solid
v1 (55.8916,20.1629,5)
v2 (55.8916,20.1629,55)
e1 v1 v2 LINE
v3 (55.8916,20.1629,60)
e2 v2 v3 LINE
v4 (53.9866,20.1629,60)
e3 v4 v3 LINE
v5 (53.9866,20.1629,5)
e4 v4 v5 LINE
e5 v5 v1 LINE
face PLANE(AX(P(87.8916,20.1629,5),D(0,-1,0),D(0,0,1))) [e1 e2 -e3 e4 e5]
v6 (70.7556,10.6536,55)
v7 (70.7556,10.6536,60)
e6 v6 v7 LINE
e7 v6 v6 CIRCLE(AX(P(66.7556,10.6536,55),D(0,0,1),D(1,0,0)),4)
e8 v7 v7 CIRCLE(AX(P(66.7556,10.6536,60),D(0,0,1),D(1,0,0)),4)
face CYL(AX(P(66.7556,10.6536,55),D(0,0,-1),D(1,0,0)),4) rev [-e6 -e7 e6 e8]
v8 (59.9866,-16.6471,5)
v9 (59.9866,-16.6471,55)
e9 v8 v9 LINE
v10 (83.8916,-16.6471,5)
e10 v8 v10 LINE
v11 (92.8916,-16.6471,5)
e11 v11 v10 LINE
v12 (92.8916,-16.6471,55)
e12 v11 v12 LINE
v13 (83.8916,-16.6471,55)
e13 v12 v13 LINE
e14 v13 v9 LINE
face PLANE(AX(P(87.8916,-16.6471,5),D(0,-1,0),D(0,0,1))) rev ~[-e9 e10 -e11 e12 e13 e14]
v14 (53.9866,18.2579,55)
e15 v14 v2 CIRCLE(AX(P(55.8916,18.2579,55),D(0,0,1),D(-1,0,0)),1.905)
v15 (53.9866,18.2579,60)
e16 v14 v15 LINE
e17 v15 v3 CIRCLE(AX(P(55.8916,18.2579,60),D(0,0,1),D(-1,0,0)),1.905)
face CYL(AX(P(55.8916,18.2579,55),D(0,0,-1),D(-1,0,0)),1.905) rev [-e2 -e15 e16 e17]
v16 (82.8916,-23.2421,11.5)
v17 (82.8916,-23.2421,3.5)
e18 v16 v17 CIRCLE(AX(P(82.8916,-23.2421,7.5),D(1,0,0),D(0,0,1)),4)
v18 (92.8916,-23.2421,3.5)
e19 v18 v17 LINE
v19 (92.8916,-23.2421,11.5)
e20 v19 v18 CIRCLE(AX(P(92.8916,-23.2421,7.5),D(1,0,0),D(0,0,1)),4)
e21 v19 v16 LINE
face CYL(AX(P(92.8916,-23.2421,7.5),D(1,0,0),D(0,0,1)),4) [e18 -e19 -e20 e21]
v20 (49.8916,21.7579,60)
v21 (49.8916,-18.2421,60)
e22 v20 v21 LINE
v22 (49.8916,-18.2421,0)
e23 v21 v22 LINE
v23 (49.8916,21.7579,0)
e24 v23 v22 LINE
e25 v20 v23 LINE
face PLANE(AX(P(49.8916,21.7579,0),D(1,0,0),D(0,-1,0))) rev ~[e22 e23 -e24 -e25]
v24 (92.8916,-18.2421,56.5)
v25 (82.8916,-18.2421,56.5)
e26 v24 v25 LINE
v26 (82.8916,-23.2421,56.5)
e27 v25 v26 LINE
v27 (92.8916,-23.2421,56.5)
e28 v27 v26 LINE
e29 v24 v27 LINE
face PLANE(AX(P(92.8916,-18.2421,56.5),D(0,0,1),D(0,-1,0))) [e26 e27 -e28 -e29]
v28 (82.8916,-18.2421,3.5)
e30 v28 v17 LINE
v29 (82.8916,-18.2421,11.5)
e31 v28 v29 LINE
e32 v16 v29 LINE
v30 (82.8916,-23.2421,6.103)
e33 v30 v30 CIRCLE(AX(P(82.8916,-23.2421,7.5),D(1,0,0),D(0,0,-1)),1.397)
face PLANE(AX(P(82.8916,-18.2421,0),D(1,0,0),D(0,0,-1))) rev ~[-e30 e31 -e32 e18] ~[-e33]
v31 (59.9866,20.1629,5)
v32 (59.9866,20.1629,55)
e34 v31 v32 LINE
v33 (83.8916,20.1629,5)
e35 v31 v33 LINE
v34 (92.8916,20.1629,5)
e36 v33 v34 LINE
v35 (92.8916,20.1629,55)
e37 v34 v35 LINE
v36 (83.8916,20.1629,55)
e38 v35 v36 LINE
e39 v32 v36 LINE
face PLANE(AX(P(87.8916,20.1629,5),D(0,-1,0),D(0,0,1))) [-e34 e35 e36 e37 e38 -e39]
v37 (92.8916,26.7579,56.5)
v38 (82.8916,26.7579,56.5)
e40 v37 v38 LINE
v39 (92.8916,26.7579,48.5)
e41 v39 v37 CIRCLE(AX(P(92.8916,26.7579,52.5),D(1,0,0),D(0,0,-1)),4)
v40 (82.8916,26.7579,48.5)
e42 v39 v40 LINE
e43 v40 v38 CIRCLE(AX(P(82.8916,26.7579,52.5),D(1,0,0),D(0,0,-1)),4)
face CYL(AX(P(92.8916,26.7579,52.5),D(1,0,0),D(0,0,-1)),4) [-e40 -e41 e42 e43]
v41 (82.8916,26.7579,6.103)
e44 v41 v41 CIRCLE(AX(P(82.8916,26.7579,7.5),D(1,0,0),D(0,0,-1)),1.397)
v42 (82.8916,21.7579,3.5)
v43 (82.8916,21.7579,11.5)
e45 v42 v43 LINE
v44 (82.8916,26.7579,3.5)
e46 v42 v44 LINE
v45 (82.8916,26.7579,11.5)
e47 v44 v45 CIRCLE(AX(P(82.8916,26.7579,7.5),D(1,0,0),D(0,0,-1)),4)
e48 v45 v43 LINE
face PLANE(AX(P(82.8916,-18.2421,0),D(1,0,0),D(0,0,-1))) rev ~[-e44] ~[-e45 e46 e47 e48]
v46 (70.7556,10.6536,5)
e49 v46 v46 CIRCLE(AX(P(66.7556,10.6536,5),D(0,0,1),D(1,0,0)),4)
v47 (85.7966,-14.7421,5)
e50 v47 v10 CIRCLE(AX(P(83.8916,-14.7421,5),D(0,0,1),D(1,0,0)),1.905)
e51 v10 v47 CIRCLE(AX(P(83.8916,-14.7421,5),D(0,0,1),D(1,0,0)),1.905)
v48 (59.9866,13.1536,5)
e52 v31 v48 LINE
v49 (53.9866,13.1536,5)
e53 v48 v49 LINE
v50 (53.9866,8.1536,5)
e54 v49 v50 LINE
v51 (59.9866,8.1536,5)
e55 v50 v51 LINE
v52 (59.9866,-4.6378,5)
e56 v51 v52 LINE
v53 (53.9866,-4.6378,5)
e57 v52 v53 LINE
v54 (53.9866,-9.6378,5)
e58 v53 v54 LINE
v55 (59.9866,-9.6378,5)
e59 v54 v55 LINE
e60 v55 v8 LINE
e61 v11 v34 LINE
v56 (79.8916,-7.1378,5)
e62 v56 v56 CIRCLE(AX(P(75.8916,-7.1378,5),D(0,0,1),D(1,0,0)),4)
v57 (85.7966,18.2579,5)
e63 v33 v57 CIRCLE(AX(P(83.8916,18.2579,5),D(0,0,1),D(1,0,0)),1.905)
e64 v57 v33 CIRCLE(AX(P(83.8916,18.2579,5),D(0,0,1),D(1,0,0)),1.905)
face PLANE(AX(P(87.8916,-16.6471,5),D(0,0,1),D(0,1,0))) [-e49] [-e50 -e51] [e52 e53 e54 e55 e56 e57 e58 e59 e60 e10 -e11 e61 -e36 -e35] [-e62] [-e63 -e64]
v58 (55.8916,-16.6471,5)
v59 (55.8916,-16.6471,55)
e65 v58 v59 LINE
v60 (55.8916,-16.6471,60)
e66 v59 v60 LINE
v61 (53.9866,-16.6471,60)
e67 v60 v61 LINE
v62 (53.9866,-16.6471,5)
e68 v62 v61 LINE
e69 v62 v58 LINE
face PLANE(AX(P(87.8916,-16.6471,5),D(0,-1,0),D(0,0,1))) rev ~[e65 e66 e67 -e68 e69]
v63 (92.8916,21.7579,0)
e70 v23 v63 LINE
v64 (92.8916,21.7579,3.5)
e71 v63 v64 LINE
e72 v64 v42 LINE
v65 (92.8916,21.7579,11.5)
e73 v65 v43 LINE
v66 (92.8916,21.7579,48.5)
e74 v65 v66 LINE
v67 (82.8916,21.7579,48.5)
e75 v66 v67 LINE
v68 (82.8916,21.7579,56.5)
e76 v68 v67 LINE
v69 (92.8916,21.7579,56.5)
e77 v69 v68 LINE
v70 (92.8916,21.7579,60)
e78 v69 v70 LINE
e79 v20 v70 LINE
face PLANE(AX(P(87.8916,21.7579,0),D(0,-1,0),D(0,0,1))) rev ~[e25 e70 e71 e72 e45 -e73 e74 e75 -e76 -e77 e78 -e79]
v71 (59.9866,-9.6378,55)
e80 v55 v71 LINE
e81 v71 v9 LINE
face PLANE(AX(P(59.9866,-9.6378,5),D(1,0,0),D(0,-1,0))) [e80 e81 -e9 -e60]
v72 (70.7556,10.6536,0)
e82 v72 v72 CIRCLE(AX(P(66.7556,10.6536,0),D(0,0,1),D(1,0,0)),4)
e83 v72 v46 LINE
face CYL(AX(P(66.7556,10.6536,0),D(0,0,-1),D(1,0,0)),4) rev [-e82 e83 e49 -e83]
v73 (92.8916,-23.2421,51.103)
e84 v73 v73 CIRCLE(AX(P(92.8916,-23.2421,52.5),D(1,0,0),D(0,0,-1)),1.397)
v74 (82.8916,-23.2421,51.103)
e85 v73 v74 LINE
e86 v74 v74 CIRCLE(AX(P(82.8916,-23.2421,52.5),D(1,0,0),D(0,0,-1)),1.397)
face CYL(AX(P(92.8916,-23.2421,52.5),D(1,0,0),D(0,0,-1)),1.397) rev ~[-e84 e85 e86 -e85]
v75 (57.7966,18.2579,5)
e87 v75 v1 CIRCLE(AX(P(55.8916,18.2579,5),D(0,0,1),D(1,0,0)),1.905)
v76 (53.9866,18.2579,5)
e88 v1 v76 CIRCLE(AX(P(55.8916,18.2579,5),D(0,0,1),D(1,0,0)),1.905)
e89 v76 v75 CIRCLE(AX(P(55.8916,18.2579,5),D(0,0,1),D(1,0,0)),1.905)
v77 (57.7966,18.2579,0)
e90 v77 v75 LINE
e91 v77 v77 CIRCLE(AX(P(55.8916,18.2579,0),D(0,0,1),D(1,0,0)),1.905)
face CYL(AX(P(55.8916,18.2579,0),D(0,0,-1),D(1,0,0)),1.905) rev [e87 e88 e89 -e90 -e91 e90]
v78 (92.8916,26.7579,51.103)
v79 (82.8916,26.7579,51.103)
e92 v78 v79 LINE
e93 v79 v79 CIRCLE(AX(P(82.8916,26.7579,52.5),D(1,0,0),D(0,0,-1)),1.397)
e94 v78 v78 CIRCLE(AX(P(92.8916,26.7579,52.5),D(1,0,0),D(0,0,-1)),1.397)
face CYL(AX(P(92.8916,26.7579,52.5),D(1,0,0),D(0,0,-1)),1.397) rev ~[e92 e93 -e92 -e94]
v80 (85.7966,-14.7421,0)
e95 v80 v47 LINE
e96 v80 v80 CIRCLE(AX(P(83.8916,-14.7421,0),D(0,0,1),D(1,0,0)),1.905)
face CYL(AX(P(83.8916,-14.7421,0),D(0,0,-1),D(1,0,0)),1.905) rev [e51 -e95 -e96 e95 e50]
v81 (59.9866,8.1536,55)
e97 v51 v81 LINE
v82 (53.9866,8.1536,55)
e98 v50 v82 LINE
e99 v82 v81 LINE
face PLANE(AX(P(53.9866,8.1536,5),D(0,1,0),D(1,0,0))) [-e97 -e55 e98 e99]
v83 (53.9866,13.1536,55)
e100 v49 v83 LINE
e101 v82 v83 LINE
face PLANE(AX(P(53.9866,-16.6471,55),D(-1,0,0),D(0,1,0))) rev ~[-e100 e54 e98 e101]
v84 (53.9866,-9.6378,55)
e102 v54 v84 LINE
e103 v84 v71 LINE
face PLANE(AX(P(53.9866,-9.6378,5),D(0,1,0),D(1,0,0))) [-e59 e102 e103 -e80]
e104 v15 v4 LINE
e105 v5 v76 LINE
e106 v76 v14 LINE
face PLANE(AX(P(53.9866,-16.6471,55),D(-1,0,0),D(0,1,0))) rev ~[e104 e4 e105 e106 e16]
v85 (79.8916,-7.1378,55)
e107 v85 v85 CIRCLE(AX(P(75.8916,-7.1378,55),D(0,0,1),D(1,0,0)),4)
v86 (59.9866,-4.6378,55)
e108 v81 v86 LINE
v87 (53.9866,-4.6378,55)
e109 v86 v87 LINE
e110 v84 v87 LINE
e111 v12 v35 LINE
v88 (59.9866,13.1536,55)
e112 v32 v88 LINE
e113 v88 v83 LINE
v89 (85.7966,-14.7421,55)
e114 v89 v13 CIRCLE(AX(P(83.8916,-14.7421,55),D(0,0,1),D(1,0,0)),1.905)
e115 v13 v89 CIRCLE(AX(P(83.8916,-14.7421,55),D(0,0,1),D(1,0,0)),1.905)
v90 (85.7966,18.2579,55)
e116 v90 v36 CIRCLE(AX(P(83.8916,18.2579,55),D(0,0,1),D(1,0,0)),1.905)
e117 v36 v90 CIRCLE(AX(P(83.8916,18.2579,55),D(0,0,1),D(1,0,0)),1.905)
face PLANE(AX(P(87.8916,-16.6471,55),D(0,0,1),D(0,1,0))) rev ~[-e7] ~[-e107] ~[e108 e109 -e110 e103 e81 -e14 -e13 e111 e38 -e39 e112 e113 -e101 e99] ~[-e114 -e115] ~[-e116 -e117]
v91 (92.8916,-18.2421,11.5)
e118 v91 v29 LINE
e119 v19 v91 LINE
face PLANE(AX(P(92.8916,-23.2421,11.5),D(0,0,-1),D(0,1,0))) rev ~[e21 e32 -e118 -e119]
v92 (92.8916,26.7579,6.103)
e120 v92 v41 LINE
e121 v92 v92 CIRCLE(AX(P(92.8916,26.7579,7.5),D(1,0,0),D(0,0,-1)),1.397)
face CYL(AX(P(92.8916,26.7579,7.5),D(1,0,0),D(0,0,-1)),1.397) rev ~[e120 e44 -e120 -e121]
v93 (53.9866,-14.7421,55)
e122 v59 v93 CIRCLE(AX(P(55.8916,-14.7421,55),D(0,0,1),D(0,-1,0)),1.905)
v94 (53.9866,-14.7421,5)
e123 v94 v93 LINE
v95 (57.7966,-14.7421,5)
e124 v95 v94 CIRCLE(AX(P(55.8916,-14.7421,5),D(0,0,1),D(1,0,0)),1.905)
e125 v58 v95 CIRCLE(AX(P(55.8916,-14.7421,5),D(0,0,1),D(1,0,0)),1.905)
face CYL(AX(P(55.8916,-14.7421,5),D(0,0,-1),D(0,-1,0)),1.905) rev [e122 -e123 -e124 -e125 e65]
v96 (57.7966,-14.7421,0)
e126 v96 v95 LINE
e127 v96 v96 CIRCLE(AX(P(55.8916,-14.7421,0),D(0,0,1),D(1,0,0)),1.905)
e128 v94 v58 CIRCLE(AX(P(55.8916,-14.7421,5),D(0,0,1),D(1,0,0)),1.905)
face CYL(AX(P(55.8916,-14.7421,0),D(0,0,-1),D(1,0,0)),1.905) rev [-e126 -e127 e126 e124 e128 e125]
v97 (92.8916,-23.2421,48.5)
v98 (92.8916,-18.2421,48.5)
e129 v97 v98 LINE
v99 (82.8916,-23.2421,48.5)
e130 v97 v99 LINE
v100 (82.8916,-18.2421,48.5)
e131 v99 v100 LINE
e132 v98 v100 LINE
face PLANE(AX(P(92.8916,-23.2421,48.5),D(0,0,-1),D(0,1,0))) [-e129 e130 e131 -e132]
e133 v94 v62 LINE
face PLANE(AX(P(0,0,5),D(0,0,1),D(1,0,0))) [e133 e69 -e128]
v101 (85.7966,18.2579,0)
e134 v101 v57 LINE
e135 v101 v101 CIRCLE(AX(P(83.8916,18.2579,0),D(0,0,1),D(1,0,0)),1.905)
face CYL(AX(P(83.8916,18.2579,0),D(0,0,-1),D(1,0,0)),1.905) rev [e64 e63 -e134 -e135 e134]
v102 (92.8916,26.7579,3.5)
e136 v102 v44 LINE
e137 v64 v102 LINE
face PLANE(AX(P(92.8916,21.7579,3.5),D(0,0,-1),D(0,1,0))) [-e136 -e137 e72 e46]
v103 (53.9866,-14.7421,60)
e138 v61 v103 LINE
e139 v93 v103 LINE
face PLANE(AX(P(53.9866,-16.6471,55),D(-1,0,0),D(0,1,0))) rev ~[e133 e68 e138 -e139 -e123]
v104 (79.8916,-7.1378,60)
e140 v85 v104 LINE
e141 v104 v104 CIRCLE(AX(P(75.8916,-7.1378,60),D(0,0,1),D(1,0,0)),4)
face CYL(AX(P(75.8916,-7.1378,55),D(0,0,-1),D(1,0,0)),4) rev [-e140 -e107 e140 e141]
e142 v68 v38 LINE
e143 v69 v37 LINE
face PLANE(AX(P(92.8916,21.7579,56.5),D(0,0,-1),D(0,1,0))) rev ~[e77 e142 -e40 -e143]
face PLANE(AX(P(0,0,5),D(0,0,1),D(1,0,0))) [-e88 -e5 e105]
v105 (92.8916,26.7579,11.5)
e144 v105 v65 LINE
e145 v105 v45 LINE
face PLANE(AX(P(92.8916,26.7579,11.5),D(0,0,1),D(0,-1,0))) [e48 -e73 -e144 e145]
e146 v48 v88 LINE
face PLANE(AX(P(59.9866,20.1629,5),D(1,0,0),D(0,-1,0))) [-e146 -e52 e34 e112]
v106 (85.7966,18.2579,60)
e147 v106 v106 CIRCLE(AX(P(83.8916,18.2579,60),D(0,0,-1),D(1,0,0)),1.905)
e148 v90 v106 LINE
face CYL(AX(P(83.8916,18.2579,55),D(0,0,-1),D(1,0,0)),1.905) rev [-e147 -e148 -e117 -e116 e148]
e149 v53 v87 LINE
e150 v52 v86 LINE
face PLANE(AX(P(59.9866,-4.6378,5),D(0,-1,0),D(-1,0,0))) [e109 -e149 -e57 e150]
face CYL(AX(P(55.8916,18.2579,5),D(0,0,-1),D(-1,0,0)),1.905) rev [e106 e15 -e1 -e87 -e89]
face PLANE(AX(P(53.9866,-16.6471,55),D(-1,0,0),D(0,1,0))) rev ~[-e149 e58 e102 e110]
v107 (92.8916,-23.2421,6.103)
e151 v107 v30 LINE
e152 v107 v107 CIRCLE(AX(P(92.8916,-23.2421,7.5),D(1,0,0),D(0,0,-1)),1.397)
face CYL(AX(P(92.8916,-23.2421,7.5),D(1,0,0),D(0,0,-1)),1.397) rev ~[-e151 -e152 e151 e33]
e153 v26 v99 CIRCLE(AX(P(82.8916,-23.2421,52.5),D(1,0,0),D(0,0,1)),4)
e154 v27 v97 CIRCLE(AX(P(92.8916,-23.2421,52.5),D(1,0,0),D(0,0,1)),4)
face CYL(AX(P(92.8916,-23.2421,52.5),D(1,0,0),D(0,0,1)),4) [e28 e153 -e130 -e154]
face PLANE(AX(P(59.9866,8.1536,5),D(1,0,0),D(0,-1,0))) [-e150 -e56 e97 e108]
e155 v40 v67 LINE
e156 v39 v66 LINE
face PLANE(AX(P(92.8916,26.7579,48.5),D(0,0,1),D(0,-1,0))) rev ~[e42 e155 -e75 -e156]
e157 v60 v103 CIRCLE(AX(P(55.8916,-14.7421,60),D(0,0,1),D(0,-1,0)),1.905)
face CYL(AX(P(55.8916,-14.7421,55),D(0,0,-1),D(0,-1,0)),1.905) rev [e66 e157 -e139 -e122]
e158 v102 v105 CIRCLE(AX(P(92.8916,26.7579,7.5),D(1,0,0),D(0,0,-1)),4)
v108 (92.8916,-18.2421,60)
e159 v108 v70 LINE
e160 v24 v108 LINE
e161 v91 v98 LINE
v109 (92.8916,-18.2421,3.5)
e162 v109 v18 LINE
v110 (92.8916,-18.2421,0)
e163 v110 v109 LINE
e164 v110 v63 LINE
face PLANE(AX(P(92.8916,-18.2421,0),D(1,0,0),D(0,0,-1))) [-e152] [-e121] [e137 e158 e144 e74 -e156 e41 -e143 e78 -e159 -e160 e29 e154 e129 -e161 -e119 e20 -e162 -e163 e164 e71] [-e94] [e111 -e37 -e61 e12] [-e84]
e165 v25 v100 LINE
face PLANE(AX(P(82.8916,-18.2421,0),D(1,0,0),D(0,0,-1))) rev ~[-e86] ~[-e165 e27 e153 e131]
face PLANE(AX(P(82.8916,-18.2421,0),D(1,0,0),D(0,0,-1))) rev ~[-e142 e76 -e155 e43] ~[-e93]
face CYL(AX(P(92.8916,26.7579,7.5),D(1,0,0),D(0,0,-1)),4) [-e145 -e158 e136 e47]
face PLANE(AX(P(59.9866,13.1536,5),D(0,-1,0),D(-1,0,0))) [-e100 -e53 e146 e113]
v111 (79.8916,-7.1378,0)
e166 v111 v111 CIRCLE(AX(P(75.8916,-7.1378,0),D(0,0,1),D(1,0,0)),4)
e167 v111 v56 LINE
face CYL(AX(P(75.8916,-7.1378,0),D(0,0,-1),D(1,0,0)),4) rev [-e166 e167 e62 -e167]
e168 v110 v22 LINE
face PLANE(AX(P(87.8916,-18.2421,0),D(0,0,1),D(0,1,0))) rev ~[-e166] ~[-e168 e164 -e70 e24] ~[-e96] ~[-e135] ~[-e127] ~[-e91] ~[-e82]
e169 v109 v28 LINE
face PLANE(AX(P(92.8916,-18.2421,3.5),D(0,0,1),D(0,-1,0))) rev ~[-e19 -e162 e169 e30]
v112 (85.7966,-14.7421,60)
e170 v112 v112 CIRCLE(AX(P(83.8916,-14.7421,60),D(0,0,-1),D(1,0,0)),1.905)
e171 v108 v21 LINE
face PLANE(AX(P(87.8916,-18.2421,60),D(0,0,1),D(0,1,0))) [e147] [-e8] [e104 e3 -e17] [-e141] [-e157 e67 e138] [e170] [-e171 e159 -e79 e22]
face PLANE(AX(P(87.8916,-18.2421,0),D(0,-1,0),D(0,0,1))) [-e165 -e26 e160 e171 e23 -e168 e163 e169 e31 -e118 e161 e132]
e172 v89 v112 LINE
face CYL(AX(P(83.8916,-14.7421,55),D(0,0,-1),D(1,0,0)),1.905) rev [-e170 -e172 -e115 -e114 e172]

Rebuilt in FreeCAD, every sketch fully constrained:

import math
import FreeCAD as App
import Part
import Sketcher

V = App.Vector

doc = App.newDocument("Part")
body = doc.addObject("PartDesign::Body", "Body")

sketch1 = body.newObject("Sketcher::SketchObject", "Sketch")
sketch1.AttachmentSupport = (doc.getObject("XY_Plane"), [""])
sketch1.MapMode = "FlatFace"
sketch1.addGeometry([
    Part.LineSegment(V(49.9, -18.2, 0), V(87.9, -18.2, 0)),
    Part.LineSegment(V(87.9, -18.2, 0), V(87.9, 21.8, 0)),
    Part.LineSegment(V(87.9, 21.8, 0), V(49.9, 21.8, 0)),
    Part.LineSegment(V(49.9, 21.8, 0), V(49.9, -18.2, 0)),
    Part.Circle(V(55.9, -14.7, 0), V(0, 0, 1), 1.9),
    Part.Circle(V(83.9, -14.7, 0), V(0, 0, 1), 1.9),
    Part.Circle(V(75.9, -7.1, 0), V(0, 0, 1), 4),
    Part.Circle(V(66.8, 10.7, 0), V(0, 0, 1), 4),
    Part.Circle(V(55.9, 18.3, 0), V(0, 0, 1), 1.9),
    Part.Circle(V(83.9, 18.3, 0), V(0, 0, 1), 1.9),
], False)
sketch1.addConstraint([
    Sketcher.Constraint("Coincident", 0, 2, 1, 1),
    Sketcher.Constraint("Coincident", 1, 2, 2, 1),
    Sketcher.Constraint("Coincident", 2, 2, 3, 1),
    Sketcher.Constraint("Coincident", 3, 2, 0, 1),
    Sketcher.Constraint("Horizontal", 0),
    Sketcher.Constraint("Vertical", 1),
    Sketcher.Constraint("Horizontal", 2),
    Sketcher.Constraint("Vertical", 3),
    Sketcher.Constraint("Equal", 4, 5),
    Sketcher.Constraint("Equal", 6, 7),
    Sketcher.Constraint("Equal", 5, 8),
    Sketcher.Constraint("Equal", 8, 9),
    Sketcher.Constraint("Horizontal", 4, 3, 5, 3),
    Sketcher.Constraint("Horizontal", 8, 3, 9, 3),
    Sketcher.Constraint("Vertical", 4, 3, 8, 3),
    Sketcher.Constraint("Vertical", 5, 3, 9, 3),
    Sketcher.Constraint("Diameter", 4, 3.81),
    Sketcher.Constraint("DistanceX", 0, 1, 0, 2, 38.0),
    Sketcher.Constraint("Diameter", 6, 8.0),
    Sketcher.Constraint("DistanceY", 1, 1, 1, 2, 40.0),
    Sketcher.Constraint("DistanceX", 4, 3, 5, 3, 28.0),
    Sketcher.Constraint("DistanceX", 6, 3, 5, 3, 8.0),
    Sketcher.Constraint("DistanceY", 4, 3, 8, 3, 33.0),
    Sketcher.Constraint("DistanceX", 5, 3, 0, 2, 4.0),
    Sketcher.Constraint("DistanceY", 0, 2, 5, 3, 3.5),
    Sketcher.Constraint("DistanceY", 4, 3, -1, 1, 14.742),
    Sketcher.Constraint("DistanceX", 7, 3, 6, 3, 9.136),
    Sketcher.Constraint("DistanceX", -1, 1, 4, 3, 55.8916),
    Sketcher.Constraint("DistanceY", 6, 3, -1, 1, 7.1378),
    Sketcher.Constraint("DistanceY", -1, 1, 7, 3, 10.6536),
])
pad1 = body.newObject("PartDesign::Pad", "Pad")
pad1.Profile = sketch1
pad1.Length = 5

sketch2 = body.newObject("Sketcher::SketchObject", "Sketch001")
sketch2.AttachmentSupport = (doc.getObject("XY_Plane"), [""])
sketch2.MapMode = "FlatFace"
sketch2.AttachmentOffset = App.Placement(V(0, 0, 5), App.Rotation())
sketch2.addGeometry([
    Part.LineSegment(V(49.9, -18.2, 0), V(87.9, -18.2, 0)),
    Part.LineSegment(V(87.9, -18.2, 0), V(87.9, -16.6, 0)),
    Part.LineSegment(V(87.9, -16.6, 0), V(54, -16.6, 0)),
    Part.LineSegment(V(54, -16.6, 0), V(54, 20.2, 0)),
    Part.LineSegment(V(54, 20.2, 0), V(87.9, 20.2, 0)),
    Part.LineSegment(V(87.9, 20.2, 0), V(87.9, 21.8, 0)),
    Part.LineSegment(V(87.9, 21.8, 0), V(49.9, 21.8, 0)),
    Part.LineSegment(V(49.9, 21.8, 0), V(49.9, -18.2, 0)),
], False)
sketch2.addConstraint([
    Sketcher.Constraint("Coincident", 0, 2, 1, 1),
    Sketcher.Constraint("Coincident", 1, 2, 2, 1),
    Sketcher.Constraint("Coincident", 2, 2, 3, 1),
    Sketcher.Constraint("Coincident", 3, 2, 4, 1),
    Sketcher.Constraint("Coincident", 4, 2, 5, 1),
    Sketcher.Constraint("Coincident", 5, 2, 6, 1),
    Sketcher.Constraint("Coincident", 6, 2, 7, 1),
    Sketcher.Constraint("Coincident", 7, 2, 0, 1),
    Sketcher.Constraint("Horizontal", 0),
    Sketcher.Constraint("Vertical", 1),
    Sketcher.Constraint("Horizontal", 2),
    Sketcher.Constraint("Vertical", 3),
    Sketcher.Constraint("Horizontal", 4),
    Sketcher.Constraint("Vertical", 5),
    Sketcher.Constraint("Horizontal", 6),
    Sketcher.Constraint("Vertical", 7),
    Sketcher.Constraint("Vertical", 1, 2, 4, 2),
    Sketcher.Constraint("Equal", 1, 5),
    Sketcher.Constraint("DistanceX", 0, 1, 0, 2, 38.0),
    Sketcher.Constraint("DistanceY", 7, 2, 7, 1, 40.0),
    Sketcher.Constraint("DistanceY", 3, 1, 3, 2, 36.81),
    Sketcher.Constraint("DistanceX", 2, 2, 2, 1, 33.905),
    Sketcher.Constraint("DistanceY", 0, 2, -1, 1, 18.242),
    Sketcher.Constraint("DistanceX", -1, 1, 0, 2, 87.8916),
])
pad2 = body.newObject("PartDesign::Pad", "Pad001")
pad2.Profile = sketch2
pad2.Length = 50

sketch3 = body.newObject("Sketcher::SketchObject", "Sketch002")
sketch3.AttachmentSupport = (doc.getObject("XY_Plane"), [""])
sketch3.MapMode = "FlatFace"
sketch3.AttachmentOffset = App.Placement(V(0, 0, 55), App.Rotation())
sketch3.addGeometry([
    Part.LineSegment(V(87.9, 21.8, 0), V(49.9, 21.8, 0)),
    Part.LineSegment(V(49.9, 21.8, 0), V(49.9, -18.2, 0)),
    Part.LineSegment(V(49.9, -18.2, 0), V(87.9, -18.2, 0)),
    Part.LineSegment(V(87.9, -18.2, 0), V(87.9, 21.8, 0)),
    Part.ArcOfCircle(Part.Circle(V(55.9, -14.7, 0), V(0, 0, 1), 1.9), math.radians(-90), math.radians(180)),
    Part.LineSegment(V(55.9, -16.6, 0), V(54, -16.6, 0)),
    Part.LineSegment(V(54, -16.6, 0), V(54, -14.7, 0)),
    Part.ArcOfCircle(Part.Circle(V(55.9, 18.3, 0), V(0, 0, 1), 1.9), math.radians(180), math.radians(450)),
    Part.LineSegment(V(54, 18.3, 0), V(54, 20.2, 0)),
    Part.LineSegment(V(54, 20.2, 0), V(55.9, 20.2, 0)),
    Part.Circle(V(83.9, -14.7, 0), V(0, 0, 1), 1.9),
    Part.Circle(V(75.9, -7.1, 0), V(0, 0, 1), 4),
    Part.Circle(V(66.8, 10.7, 0), V(0, 0, 1), 4),
    Part.Circle(V(83.9, 18.3, 0), V(0, 0, 1), 1.9),
], False)
sketch3.addConstraint([
    Sketcher.Constraint("Coincident", 0, 2, 1, 1),
    Sketcher.Constraint("Coincident", 1, 2, 2, 1),
    Sketcher.Constraint("Coincident", 2, 2, 3, 1),
    Sketcher.Constraint("Coincident", 3, 2, 0, 1),
    Sketcher.Constraint("Tangent", 4, 1, 5, 1),
    Sketcher.Constraint("Coincident", 5, 2, 6, 1),
    Sketcher.Constraint("Tangent", 6, 2, 4, 2),
    Sketcher.Constraint("Tangent", 7, 1, 8, 1),
    Sketcher.Constraint("Coincident", 8, 2, 9, 1),
    Sketcher.Constraint("Tangent", 9, 2, 7, 2),
    Sketcher.Constraint("Horizontal", 0),
    Sketcher.Constraint("Vertical", 1),
    Sketcher.Constraint("Horizontal", 2),
    Sketcher.Constraint("Vertical", 3),
    Sketcher.Constraint("Horizontal", 5),
    Sketcher.Constraint("Vertical", 6),
    Sketcher.Constraint("Vertical", 8),
    Sketcher.Constraint("Horizontal", 9),
    Sketcher.Constraint("Equal", 4, 7),
    Sketcher.Constraint("Equal", 7, 10),
    Sketcher.Constraint("Equal", 11, 12),
    Sketcher.Constraint("Equal", 10, 13),
    Sketcher.Constraint("Horizontal", 4, 3, 10, 3),
    Sketcher.Constraint("Horizontal", 7, 3, 13, 3),
    Sketcher.Constraint("Vertical", 4, 3, 7, 3),
    Sketcher.Constraint("Vertical", 10, 3, 13, 3),
    Sketcher.Constraint("Diameter", 11, 8.0),
    Sketcher.Constraint("Diameter", 10, 3.81),
    Sketcher.Constraint("DistanceX", 0, 2, 0, 1, 38.0),
    Sketcher.Constraint("DistanceY", 1, 2, 1, 1, 40.0),
    Sketcher.Constraint("DistanceY", 4, 3, 7, 3, 33.0),
    Sketcher.Constraint("DistanceX", 4, 3, 10, 3, 28.0),
    Sketcher.Constraint("DistanceX", 11, 3, 10, 3, 8.0),
    Sketcher.Constraint("DistanceX", 0, 2, 7, 3, 6.0),
    Sketcher.Constraint("DistanceY", 7, 3, 0, 2, 3.5),
    Sketcher.Constraint("DistanceY", 4, 3, -1, 1, 14.742),
    Sketcher.Constraint("DistanceX", 7, 3, 12, 3, 10.864),
    Sketcher.Constraint("DistanceX", -1, 1, 4, 3, 55.8916),
    Sketcher.Constraint("DistanceY", 11, 3, -1, 1, 7.1378),
    Sketcher.Constraint("DistanceY", -1, 1, 12, 3, 10.6536),
])
pad3 = body.newObject("PartDesign::Pad", "Pad002")
pad3.Profile = sketch3
pad3.Length = 5

sketch4 = body.newObject("Sketcher::SketchObject", "Sketch003")
sketch4.AttachmentSupport = (doc.getObject("YZ_Plane"), [""])
sketch4.MapMode = "FlatFace"
sketch4.AttachmentOffset = App.Placement(V(0, 0, 87.8916), App.Rotation())
sketch4.addGeometry([
    Part.LineSegment(V(-18, 0, 0), V(22, 0, 0)),
    Part.LineSegment(V(22, 0, 0), V(22, 60, 0)),
    Part.LineSegment(V(22, 60, 0), V(-18, 60, 0)),
    Part.LineSegment(V(-18, 60, 0), V(-18, 0, 0)),
    Part.LineSegment(V(20, 55, 0), V(20, 5, 0)),
    Part.LineSegment(V(20, 5, 0), V(-17, 5, 0)),
    Part.LineSegment(V(-17, 5, 0), V(-17, 55, 0)),
    Part.LineSegment(V(-17, 55, 0), V(20, 55, 0)),
], False)
sketch4.addConstraint([
    Sketcher.Constraint("Coincident", 0, 2, 1, 1),
    Sketcher.Constraint("Coincident", 1, 2, 2, 1),
    Sketcher.Constraint("Coincident", 2, 2, 3, 1),
    Sketcher.Constraint("Coincident", 3, 2, 0, 1),
    Sketcher.Constraint("Coincident", 4, 2, 5, 1),
    Sketcher.Constraint("Coincident", 5, 2, 6, 1),
    Sketcher.Constraint("Coincident", 6, 2, 7, 1),
    Sketcher.Constraint("Coincident", 7, 2, 4, 1),
    Sketcher.Constraint("Horizontal", 0),
    Sketcher.Constraint("Vertical", 1),
    Sketcher.Constraint("Horizontal", 2),
    Sketcher.Constraint("Vertical", 3),
    Sketcher.Constraint("Vertical", 4),
    Sketcher.Constraint("Horizontal", 5),
    Sketcher.Constraint("Vertical", 6),
    Sketcher.Constraint("Horizontal", 7),
    Sketcher.Constraint("PointOnObject", 0, 2, -1),
    Sketcher.Constraint("DistanceX", 0, 1, 0, 2, 40.0),
    Sketcher.Constraint("DistanceY", 1, 1, 1, 2, 60.0),
    Sketcher.Constraint("DistanceY", 4, 2, 4, 1, 50.0),
    Sketcher.Constraint("DistanceY", -1, 1, 4, 2, 5.0),
    Sketcher.Constraint("DistanceX", 5, 2, 5, 1, 36.81),
    Sketcher.Constraint("DistanceX", -1, 1, 0, 2, 21.758),
    Sketcher.Constraint("DistanceX", -1, 1, 4, 2, 20.163),
])
pad4 = body.newObject("PartDesign::Pad", "Pad003")
pad4.Profile = sketch4
pad4.Length = 5

sketch5 = body.newObject("Sketcher::SketchObject", "Sketch004")
sketch5.AttachmentSupport = (doc.getObject("XY_Plane"), [""])
sketch5.MapMode = "FlatFace"
sketch5.AttachmentOffset = App.Placement(V(0, 0, 5), App.Rotation())
sketch5.addGeometry([
    Part.ArcOfCircle(Part.Circle(V(55.9, -14.7, 0), V(0, 0, 1), 1.9), math.radians(-90), math.radians(180)),
    Part.LineSegment(V(55.9, -16.6, 0), V(60, -16.6, 0)),
    Part.LineSegment(V(60, -16.6, 0), V(60, -9.6, 0)),
    Part.LineSegment(V(60, -9.6, 0), V(54, -9.6, 0)),
    Part.LineSegment(V(54, -9.6, 0), V(54, -14.7, 0)),
    Part.LineSegment(V(54, 8.2, 0), V(54, -4.6, 0)),
    Part.LineSegment(V(54, -4.6, 0), V(60, -4.6, 0)),
    Part.LineSegment(V(60, -4.6, 0), V(60, 8.2, 0)),
    Part.LineSegment(V(60, 8.2, 0), V(54, 8.2, 0)),
    Part.LineSegment(V(54, 18.3, 0), V(54, 13.2, 0)),
    Part.LineSegment(V(54, 13.2, 0), V(60, 13.2, 0)),
    Part.LineSegment(V(60, 13.2, 0), V(60, 20.2, 0)),
    Part.LineSegment(V(60, 20.2, 0), V(55.9, 20.2, 0)),
    Part.ArcOfCircle(Part.Circle(V(55.9, 18.3, 0), V(0, 0, 1), 1.9), math.radians(180), math.radians(450)),
], False)
sketch5.addConstraint([
    Sketcher.Constraint("Tangent", 0, 1, 1, 1),
    Sketcher.Constraint("Coincident", 1, 2, 2, 1),
    Sketcher.Constraint("Coincident", 2, 2, 3, 1),
    Sketcher.Constraint("Coincident", 3, 2, 4, 1),
    Sketcher.Constraint("Tangent", 4, 2, 0, 2),
    Sketcher.Constraint("Coincident", 5, 2, 6, 1),
    Sketcher.Constraint("Coincident", 6, 2, 7, 1),
    Sketcher.Constraint("Coincident", 7, 2, 8, 1),
    Sketcher.Constraint("Coincident", 8, 2, 5, 1),
    Sketcher.Constraint("Coincident", 9, 2, 10, 1),
    Sketcher.Constraint("Coincident", 10, 2, 11, 1),
    Sketcher.Constraint("Coincident", 11, 2, 12, 1),
    Sketcher.Constraint("Tangent", 12, 2, 13, 2),
    Sketcher.Constraint("Tangent", 13, 1, 9, 1),
    Sketcher.Constraint("Horizontal", 1),
    Sketcher.Constraint("Vertical", 2),
    Sketcher.Constraint("Horizontal", 3),
    Sketcher.Constraint("Vertical", 4),
    Sketcher.Constraint("Vertical", 5),
    Sketcher.Constraint("Horizontal", 6),
    Sketcher.Constraint("Vertical", 7),
    Sketcher.Constraint("Horizontal", 8),
    Sketcher.Constraint("Vertical", 9),
    Sketcher.Constraint("Horizontal", 10),
    Sketcher.Constraint("Vertical", 11),
    Sketcher.Constraint("Horizontal", 12),
    Sketcher.Constraint("Equal", 0, 13),
    Sketcher.Constraint("Vertical", 0, 3, 13, 3),
    Sketcher.Constraint("Vertical", 4, 2, 5, 2),
    Sketcher.Constraint("Vertical", 2, 2, 6, 2),
    Sketcher.Constraint("Vertical", 7, 2, 10, 2),
    Sketcher.Constraint("Equal", 4, 9),
    Sketcher.Constraint("DistanceX", 3, 2, 3, 1, 6.0),
    Sketcher.Constraint("DistanceY", 3, 2, 5, 2, 5.0),
    Sketcher.Constraint("DistanceY", 8, 2, 9, 2, 5.0),
    Sketcher.Constraint("Radius", 0, 1.905),
    Sketcher.Constraint("DistanceY", 0, 3, 13, 3, 33.0),
    Sketcher.Constraint("DistanceY", 2, 1, 2, 2, 7.0093),
    Sketcher.Constraint("DistanceY", 0, 3, -1, 1, 14.742),
    Sketcher.Constraint("DistanceX", -1, 1, 0, 3, 55.8916),
])
pad5 = body.newObject("PartDesign::Pad", "Pad004")
pad5.Profile = sketch5
pad5.Type = "UpToFirst"

sketch6 = body.newObject("Sketcher::SketchObject", "Sketch005")
sketch6.AttachmentSupport = (doc.getObject("YZ_Plane"), [""])
sketch6.MapMode = "FlatFace"
sketch6.AttachmentOffset = App.Placement(V(0, 0, 92.8916), App.Rotation())
sketch6.addGeometry([
    Part.LineSegment(V(-18.2, 11.5, 0), V(-23.2, 11.5, 0)),
    Part.ArcOfCircle(Part.Circle(V(-23.2, 7.5, 0), V(0, 0, 1), 4), math.radians(90), math.radians(270)),
    Part.LineSegment(V(-23.2, 3.5, 0), V(-18.2, 3.5, 0)),
    Part.LineSegment(V(-18.2, 3.5, 0), V(-18.2, 11.5, 0)),
    Part.Circle(V(-23.2, 7.5, 0), V(0, 0, 1), 1.4),
    Part.ArcOfCircle(Part.Circle(V(-23.2, 52.5, 0), V(0, 0, 1), 4), math.radians(90), math.radians(270)),
    Part.LineSegment(V(-23.2, 48.5, 0), V(-18.2, 48.5, 0)),
    Part.LineSegment(V(-18.2, 48.5, 0), V(-18.2, 56.5, 0)),
    Part.LineSegment(V(-18.2, 56.5, 0), V(-23.2, 56.5, 0)),
    Part.Circle(V(-23.2, 52.5, 0), V(0, 0, 1), 1.4),
    Part.LineSegment(V(26.8, 11.5, 0), V(21.8, 11.5, 0)),
    Part.LineSegment(V(21.8, 11.5, 0), V(21.8, 3.5, 0)),
    Part.LineSegment(V(21.8, 3.5, 0), V(26.8, 3.5, 0)),
    Part.ArcOfCircle(Part.Circle(V(26.8, 7.5, 0), V(0, 0, 1), 4), math.radians(-90), math.radians(90)),
    Part.Circle(V(26.8, 7.5, 0), V(0, 0, 1), 1.4),
    Part.LineSegment(V(21.8, 48.5, 0), V(26.8, 48.5, 0)),
    Part.ArcOfCircle(Part.Circle(V(26.8, 52.5, 0), V(0, 0, 1), 4), math.radians(-90), math.radians(90)),
    Part.LineSegment(V(26.8, 56.5, 0), V(21.8, 56.5, 0)),
    Part.LineSegment(V(21.8, 56.5, 0), V(21.8, 48.5, 0)),
    Part.Circle(V(26.8, 52.5, 0), V(0, 0, 1), 1.4),
], False)
sketch6.addConstraint([
    Sketcher.Constraint("Tangent", 0, 2, 1, 1),
    Sketcher.Constraint("Tangent", 1, 2, 2, 1),
    Sketcher.Constraint("Coincident", 2, 2, 3, 1),
    Sketcher.Constraint("Coincident", 3, 2, 0, 1),
    Sketcher.Constraint("Tangent", 5, 2, 6, 1),
    Sketcher.Constraint("Coincident", 6, 2, 7, 1),
    Sketcher.Constraint("Coincident", 7, 2, 8, 1),
    Sketcher.Constraint("Tangent", 8, 2, 5, 1),
    Sketcher.Constraint("Coincident", 10, 2, 11, 1),
    Sketcher.Constraint("Coincident", 11, 2, 12, 1),
    Sketcher.Constraint("Tangent", 12, 2, 13, 1),
    Sketcher.Constraint("Tangent", 13, 2, 10, 1),
    Sketcher.Constraint("Tangent", 15, 2, 16, 1),
    Sketcher.Constraint("Tangent", 16, 2, 17, 1),
    Sketcher.Constraint("Coincident", 17, 2, 18, 1),
    Sketcher.Constraint("Coincident", 18, 2, 15, 1),
    Sketcher.Constraint("Horizontal", 0),
    Sketcher.Constraint("Horizontal", 2),
    Sketcher.Constraint("Vertical", 3),
    Sketcher.Constraint("Horizontal", 6),
    Sketcher.Constraint("Vertical", 7),
    Sketcher.Constraint("Horizontal", 8),
    Sketcher.Constraint("Horizontal", 10),
    Sketcher.Constraint("Vertical", 11),
    Sketcher.Constraint("Horizontal", 12),
    Sketcher.Constraint("Horizontal", 15),
    Sketcher.Constraint("Horizontal", 17),
    Sketcher.Constraint("Vertical", 18),
    Sketcher.Constraint("Coincident", 4, 3, 1, 3),
    Sketcher.Constraint("Coincident", 9, 3, 5, 3),
    Sketcher.Constraint("Coincident", 14, 3, 13, 3),
    Sketcher.Constraint("Coincident", 19, 3, 16, 3),
    Sketcher.Constraint("Equal", 1, 5),
    Sketcher.Constraint("Equal", 4, 9),
    Sketcher.Constraint("Equal", 5, 13),
    Sketcher.Constraint("Equal", 9, 14),
    Sketcher.Constraint("Equal", 13, 16),
    Sketcher.Constraint("Equal", 14, 19),
    Sketcher.Constraint("Horizontal", 4, 3, 13, 3),
    Sketcher.Constraint("Horizontal", 9, 3, 16, 3),
    Sketcher.Constraint("Vertical", 4, 3, 5, 3),
    Sketcher.Constraint("Vertical", 14, 3, 16, 3),
    Sketcher.Constraint("Vertical", 3, 2, 6, 2),
    Sketcher.Constraint("Vertical", 11, 2, 17, 2),
    Sketcher.Constraint("Equal", 8, 10),
    Sketcher.Constraint("Radius", 1, 4.0),
    Sketcher.Constraint("Diameter", 4, 2.794),
    Sketcher.Constraint("DistanceY", 1, 3, 5, 3, 45.0),
    Sketcher.Constraint("DistanceX", 1, 3, 13, 3, 50.0),
    Sketcher.Constraint("DistanceX", 2, 2, 13, 3, 45.0),
    Sketcher.Constraint("DistanceY", -1, 1, 1, 3, 7.5),
    Sketcher.Constraint("DistanceX", 1, 3, -1, 1, 23.242),
])
pad6 = body.newObject("PartDesign::Pad", "Pad005")
pad6.Profile = sketch6
pad6.Length = 10
pad6.Reversed = True

doc.recompute()
